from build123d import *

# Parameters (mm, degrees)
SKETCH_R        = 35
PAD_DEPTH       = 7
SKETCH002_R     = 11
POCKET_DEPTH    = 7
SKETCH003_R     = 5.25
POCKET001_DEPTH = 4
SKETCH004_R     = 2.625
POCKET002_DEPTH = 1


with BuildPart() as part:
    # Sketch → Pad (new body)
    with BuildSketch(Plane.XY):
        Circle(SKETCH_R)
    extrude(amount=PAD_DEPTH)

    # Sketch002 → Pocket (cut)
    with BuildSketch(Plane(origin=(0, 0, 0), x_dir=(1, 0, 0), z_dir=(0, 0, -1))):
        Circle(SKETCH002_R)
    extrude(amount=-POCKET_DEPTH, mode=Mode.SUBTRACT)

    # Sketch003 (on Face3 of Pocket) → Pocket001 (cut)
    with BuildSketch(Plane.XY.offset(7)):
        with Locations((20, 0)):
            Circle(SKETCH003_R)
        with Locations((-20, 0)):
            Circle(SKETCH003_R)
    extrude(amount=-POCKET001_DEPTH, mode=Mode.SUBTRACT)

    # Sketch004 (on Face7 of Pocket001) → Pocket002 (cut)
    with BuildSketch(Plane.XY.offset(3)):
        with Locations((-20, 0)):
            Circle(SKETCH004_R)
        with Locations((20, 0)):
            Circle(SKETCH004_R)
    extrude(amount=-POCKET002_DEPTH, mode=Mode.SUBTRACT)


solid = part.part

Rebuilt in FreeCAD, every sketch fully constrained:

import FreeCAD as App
import Part
import Sketcher

V = App.Vector

doc = App.newDocument("Part")
body = doc.addObject("PartDesign::Body", "Body")

# Sketch on XY plane
sketch1 = doc.addObject("Sketcher::SketchObject", "Sketch")
body.addObject(sketch1)
sketch1.AttachmentSupport = (doc.XY_Plane, [""])
sketch1.MapMode = "FlatFace"
sketch1.addGeometry(Part.Circle(V(0, 0, 0), V(0, 0, 1), 35), False)
sketch1.addConstraint([
    Sketcher.Constraint("Coincident", 0, 3, -1, 1),
    Sketcher.Constraint("Diameter", 0, 70.0),
])
pad1 = doc.addObject("PartDesign::Pad", "Pad")
body.addObject(pad1)
pad1.Profile = sketch1
pad1.Length = 7

# Sketch on XY plane
sketch2 = doc.addObject("Sketcher::SketchObject", "Sketch001")
body.addObject(sketch2)
sketch2.AttachmentSupport = (doc.XY_Plane, [""])
sketch2.MapMode = "FlatFace"
sketch2.addGeometry(Part.Circle(V(0, 0, 0), V(0, 0, 1), 11), False)
sketch2.addConstraint([
    Sketcher.Constraint("Coincident", 0, 3, -1, 1),
    Sketcher.Constraint("Diameter", 0, 22.0),
])
pocket1 = doc.addObject("PartDesign::Pocket", "Pocket")
body.addObject(pocket1)
pocket1.Profile = sketch2
pocket1.Length = 7
pocket1.Reversed = True

# Sketch on XY plane
sketch3 = doc.addObject("Sketcher::SketchObject", "Sketch002")
body.addObject(sketch3)
sketch3.AttachmentSupport = (doc.XY_Plane, [""])
sketch3.MapMode = "FlatFace"
sketch3.AttachmentOffset = App.Placement(V(0, 0, 7), App.Rotation())
sketch3.addGeometry([
    Part.Circle(V(20, 0, 0), V(0, 0, 1), 5.25),
    Part.Circle(V(-20, 0, 0), V(0, 0, 1), 5.25),
], False)
sketch3.addConstraint([
    Sketcher.Constraint("Equal", 0, 1),
    Sketcher.Constraint("Symmetric", 0, 3, 1, 3, -1, 1),
    Sketcher.Constraint("PointOnObject", 0, 3, -1),
    Sketcher.Constraint("Diameter", 0, 10.5),
    Sketcher.Constraint("DistanceX", -1, 1, 0, 3, 20.0),
])
pocket2 = doc.addObject("PartDesign::Pocket", "Pocket001")
body.addObject(pocket2)
pocket2.Profile = sketch3
pocket2.Length = 4

# Sketch on XY plane
sketch4 = doc.addObject("Sketcher::SketchObject", "Sketch003")
body.addObject(sketch4)
sketch4.AttachmentSupport = (doc.XY_Plane, [""])
sketch4.MapMode = "FlatFace"
sketch4.AttachmentOffset = App.Placement(V(0, 0, 3), App.Rotation())
sketch4.addGeometry([
    Part.Circle(V(-20, 0, 0), V(0, 0, 1), 2.625),
    Part.Circle(V(20, 0, 0), V(0, 0, 1), 2.625),
], False)
sketch4.addConstraint([
    Sketcher.Constraint("Equal", 0, 1),
    Sketcher.Constraint("Symmetric", 0, 3, 1, 3, -1, 1),
    Sketcher.Constraint("PointOnObject", 0, 3, -1),
    Sketcher.Constraint("Diameter", 0, 5.25),
    Sketcher.Constraint("DistanceX", 0, 3, -1, 1, 20.0),
])
pocket3 = doc.addObject("PartDesign::Pocket", "Pocket002")
body.addObject(pocket3)
pocket3.Profile = sketch4
pocket3.Length = 1

doc.recompute()
